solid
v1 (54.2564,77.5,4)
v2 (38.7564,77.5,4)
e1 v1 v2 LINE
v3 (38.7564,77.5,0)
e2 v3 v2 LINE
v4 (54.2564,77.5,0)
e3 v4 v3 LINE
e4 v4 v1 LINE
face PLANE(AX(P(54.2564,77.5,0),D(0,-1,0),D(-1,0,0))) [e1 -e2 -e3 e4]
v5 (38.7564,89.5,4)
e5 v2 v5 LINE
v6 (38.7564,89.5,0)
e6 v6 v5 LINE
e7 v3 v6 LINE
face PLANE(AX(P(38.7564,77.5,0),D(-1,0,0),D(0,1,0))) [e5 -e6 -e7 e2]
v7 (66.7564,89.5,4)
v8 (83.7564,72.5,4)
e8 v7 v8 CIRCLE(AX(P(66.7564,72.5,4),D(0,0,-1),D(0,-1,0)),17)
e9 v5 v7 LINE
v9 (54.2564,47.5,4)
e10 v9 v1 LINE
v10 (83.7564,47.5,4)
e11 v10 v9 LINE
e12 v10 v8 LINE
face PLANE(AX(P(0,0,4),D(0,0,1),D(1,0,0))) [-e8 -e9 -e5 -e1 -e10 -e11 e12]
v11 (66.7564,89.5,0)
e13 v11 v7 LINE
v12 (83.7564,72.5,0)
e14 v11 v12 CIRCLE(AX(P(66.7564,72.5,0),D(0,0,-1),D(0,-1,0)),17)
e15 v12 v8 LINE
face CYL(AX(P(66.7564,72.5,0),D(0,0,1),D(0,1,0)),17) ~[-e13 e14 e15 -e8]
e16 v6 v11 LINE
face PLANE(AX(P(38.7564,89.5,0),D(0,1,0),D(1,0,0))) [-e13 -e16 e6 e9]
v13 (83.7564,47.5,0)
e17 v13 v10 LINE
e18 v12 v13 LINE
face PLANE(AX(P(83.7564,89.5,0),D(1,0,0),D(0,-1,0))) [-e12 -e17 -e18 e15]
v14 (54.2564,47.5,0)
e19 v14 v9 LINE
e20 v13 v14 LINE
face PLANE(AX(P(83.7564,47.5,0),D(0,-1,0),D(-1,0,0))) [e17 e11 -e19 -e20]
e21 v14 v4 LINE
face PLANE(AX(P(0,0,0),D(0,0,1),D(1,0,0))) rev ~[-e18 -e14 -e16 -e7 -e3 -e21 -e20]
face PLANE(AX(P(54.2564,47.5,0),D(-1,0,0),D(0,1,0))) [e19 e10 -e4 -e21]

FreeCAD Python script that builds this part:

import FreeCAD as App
import Part
import Sketcher

V = App.Vector


def edges_at(feature, points):
    """Names of the edges that pass closest to the given points."""
    edges = feature.Shape.Edges
    near = lambda p: min(range(len(edges)), key=lambda i: edges[i].distToShape(Part.Vertex(*p))[0])
    return sorted({f"Edge{near(p) + 1}" for p in points})


def add_polygon(sketch, points):
    """Adds a closed chain of lines whose ends are joined by coincident constraints."""
    first, n = sketch.GeometryCount, len(points)
    for a, b in zip(points, points[1:] + points[:1]):
        sketch.addGeometry(Part.LineSegment(App.Vector(*a, 0), App.Vector(*b, 0)), False)
    for i in range(n):
        sketch.addConstraint(Sketcher.Constraint("Coincident", first + i, 2, first + (i + 1) % n, 1))

doc = App.newDocument("Part")
body = doc.addObject("PartDesign::Body", "Body")

# Sketch on XY plane
sketch1 = body.newObject("Sketcher::SketchObject", "Sketch")
sketch1.AttachmentSupport = (doc.getObject("XY_Plane"), [""])
sketch1.MapMode = "FlatFace"
add_polygon(sketch1, [(39, 78), (54, 78), (54, 48), (84, 48), (84, 90), (39, 90)])  # lines 0-5
sketch1.addConstraint([
    Sketcher.Constraint("Horizontal", 0),
    Sketcher.Constraint("Vertical", 1),
    Sketcher.Constraint("Horizontal", 2),
    Sketcher.Constraint("Vertical", 3),
    Sketcher.Constraint("Horizontal", 4),
    Sketcher.Constraint("Vertical", 5),
    Sketcher.Constraint("DistanceX", 4, 2, 4, 1, 45.0),
    Sketcher.Constraint("DistanceY", 1, 2, 1, 1, 30.0),
    Sketcher.Constraint("DistanceY", 5, 2, 5, 1, 12.0),
    Sketcher.Constraint("DistanceX", 2, 1, 2, 2, 29.5),
    Sketcher.Constraint("DistanceY", -1, 1, 0, 2, 77.5),
    Sketcher.Constraint("DistanceX", -1, 1, 0, 2, 54.2564),
])
pad1 = body.newObject("PartDesign::Pad", "Pad")
pad1.Profile = sketch1
pad1.Length = 4
doc.recompute()

fillet = body.newObject("PartDesign::Fillet", "Fillet")
fillet.Base = (pad1, edges_at(pad1, [(83.756, 89.5, 2)]))
fillet.Radius = 17

doc.recompute()
